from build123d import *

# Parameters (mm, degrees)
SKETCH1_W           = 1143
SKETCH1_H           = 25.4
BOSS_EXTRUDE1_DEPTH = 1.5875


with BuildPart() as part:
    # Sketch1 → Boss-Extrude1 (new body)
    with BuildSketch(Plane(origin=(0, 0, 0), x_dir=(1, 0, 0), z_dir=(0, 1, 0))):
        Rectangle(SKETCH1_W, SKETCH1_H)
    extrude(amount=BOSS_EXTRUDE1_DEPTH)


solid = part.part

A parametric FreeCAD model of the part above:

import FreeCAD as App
import Part
import Sketcher
from FreeCAD import Vector
Q = App.Units.Quantity


def add_polygon(sketch, points):
    """Adds a closed chain of lines whose ends are joined by coincident constraints."""
    first, n = sketch.GeometryCount, len(points)
    for a, b in zip(points, points[1:] + points[:1]):
        sketch.addGeometry(Part.LineSegment(App.Vector(*a, 0), App.Vector(*b, 0)), False)
    for i in range(n):
        sketch.addConstraint(Sketcher.Constraint("Coincident", first + i, 2, first + (i + 1) % n, 1))

doc = App.newDocument("Part")
body = doc.addObject("PartDesign::Body", "Body")

# Sketch on XZ plane
sketch1 = body.newObject("Sketcher::SketchObject", "Sketch")
sketch1.AttachmentSupport = (doc.getObject("XZ_Plane"), [""])
sketch1.MapMode = "FlatFace"
add_polygon(sketch1, [(-572, -13), (-572, 13), (572, 13), (572, -13)])  # lines 0-3
sketch1.addConstraint(Sketcher.Constraint("Vertical", 0))
sketch1.addConstraint(Sketcher.Constraint("Horizontal", 1))
sketch1.addConstraint(Sketcher.Constraint("Vertical", 2))
sketch1.addConstraint(Sketcher.Constraint("Horizontal", 3))
sketch1.addConstraint(Sketcher.Constraint("Symmetric", 0, 2, 2, 2, -1, 1))
sketch1.addConstraint(Sketcher.Constraint("DistanceX", 1, 1, 1, 2, Q("45 in")))
sketch1.addConstraint(Sketcher.Constraint("DistanceY", 0, 1, 0, 2, Q("1 in")))
pad1 = body.newObject("PartDesign::Pad", "Pad")
pad1.Profile = sketch1
pad1.Length = Q("0.0625 in")
pad1.Reversed = True

doc.recompute()
